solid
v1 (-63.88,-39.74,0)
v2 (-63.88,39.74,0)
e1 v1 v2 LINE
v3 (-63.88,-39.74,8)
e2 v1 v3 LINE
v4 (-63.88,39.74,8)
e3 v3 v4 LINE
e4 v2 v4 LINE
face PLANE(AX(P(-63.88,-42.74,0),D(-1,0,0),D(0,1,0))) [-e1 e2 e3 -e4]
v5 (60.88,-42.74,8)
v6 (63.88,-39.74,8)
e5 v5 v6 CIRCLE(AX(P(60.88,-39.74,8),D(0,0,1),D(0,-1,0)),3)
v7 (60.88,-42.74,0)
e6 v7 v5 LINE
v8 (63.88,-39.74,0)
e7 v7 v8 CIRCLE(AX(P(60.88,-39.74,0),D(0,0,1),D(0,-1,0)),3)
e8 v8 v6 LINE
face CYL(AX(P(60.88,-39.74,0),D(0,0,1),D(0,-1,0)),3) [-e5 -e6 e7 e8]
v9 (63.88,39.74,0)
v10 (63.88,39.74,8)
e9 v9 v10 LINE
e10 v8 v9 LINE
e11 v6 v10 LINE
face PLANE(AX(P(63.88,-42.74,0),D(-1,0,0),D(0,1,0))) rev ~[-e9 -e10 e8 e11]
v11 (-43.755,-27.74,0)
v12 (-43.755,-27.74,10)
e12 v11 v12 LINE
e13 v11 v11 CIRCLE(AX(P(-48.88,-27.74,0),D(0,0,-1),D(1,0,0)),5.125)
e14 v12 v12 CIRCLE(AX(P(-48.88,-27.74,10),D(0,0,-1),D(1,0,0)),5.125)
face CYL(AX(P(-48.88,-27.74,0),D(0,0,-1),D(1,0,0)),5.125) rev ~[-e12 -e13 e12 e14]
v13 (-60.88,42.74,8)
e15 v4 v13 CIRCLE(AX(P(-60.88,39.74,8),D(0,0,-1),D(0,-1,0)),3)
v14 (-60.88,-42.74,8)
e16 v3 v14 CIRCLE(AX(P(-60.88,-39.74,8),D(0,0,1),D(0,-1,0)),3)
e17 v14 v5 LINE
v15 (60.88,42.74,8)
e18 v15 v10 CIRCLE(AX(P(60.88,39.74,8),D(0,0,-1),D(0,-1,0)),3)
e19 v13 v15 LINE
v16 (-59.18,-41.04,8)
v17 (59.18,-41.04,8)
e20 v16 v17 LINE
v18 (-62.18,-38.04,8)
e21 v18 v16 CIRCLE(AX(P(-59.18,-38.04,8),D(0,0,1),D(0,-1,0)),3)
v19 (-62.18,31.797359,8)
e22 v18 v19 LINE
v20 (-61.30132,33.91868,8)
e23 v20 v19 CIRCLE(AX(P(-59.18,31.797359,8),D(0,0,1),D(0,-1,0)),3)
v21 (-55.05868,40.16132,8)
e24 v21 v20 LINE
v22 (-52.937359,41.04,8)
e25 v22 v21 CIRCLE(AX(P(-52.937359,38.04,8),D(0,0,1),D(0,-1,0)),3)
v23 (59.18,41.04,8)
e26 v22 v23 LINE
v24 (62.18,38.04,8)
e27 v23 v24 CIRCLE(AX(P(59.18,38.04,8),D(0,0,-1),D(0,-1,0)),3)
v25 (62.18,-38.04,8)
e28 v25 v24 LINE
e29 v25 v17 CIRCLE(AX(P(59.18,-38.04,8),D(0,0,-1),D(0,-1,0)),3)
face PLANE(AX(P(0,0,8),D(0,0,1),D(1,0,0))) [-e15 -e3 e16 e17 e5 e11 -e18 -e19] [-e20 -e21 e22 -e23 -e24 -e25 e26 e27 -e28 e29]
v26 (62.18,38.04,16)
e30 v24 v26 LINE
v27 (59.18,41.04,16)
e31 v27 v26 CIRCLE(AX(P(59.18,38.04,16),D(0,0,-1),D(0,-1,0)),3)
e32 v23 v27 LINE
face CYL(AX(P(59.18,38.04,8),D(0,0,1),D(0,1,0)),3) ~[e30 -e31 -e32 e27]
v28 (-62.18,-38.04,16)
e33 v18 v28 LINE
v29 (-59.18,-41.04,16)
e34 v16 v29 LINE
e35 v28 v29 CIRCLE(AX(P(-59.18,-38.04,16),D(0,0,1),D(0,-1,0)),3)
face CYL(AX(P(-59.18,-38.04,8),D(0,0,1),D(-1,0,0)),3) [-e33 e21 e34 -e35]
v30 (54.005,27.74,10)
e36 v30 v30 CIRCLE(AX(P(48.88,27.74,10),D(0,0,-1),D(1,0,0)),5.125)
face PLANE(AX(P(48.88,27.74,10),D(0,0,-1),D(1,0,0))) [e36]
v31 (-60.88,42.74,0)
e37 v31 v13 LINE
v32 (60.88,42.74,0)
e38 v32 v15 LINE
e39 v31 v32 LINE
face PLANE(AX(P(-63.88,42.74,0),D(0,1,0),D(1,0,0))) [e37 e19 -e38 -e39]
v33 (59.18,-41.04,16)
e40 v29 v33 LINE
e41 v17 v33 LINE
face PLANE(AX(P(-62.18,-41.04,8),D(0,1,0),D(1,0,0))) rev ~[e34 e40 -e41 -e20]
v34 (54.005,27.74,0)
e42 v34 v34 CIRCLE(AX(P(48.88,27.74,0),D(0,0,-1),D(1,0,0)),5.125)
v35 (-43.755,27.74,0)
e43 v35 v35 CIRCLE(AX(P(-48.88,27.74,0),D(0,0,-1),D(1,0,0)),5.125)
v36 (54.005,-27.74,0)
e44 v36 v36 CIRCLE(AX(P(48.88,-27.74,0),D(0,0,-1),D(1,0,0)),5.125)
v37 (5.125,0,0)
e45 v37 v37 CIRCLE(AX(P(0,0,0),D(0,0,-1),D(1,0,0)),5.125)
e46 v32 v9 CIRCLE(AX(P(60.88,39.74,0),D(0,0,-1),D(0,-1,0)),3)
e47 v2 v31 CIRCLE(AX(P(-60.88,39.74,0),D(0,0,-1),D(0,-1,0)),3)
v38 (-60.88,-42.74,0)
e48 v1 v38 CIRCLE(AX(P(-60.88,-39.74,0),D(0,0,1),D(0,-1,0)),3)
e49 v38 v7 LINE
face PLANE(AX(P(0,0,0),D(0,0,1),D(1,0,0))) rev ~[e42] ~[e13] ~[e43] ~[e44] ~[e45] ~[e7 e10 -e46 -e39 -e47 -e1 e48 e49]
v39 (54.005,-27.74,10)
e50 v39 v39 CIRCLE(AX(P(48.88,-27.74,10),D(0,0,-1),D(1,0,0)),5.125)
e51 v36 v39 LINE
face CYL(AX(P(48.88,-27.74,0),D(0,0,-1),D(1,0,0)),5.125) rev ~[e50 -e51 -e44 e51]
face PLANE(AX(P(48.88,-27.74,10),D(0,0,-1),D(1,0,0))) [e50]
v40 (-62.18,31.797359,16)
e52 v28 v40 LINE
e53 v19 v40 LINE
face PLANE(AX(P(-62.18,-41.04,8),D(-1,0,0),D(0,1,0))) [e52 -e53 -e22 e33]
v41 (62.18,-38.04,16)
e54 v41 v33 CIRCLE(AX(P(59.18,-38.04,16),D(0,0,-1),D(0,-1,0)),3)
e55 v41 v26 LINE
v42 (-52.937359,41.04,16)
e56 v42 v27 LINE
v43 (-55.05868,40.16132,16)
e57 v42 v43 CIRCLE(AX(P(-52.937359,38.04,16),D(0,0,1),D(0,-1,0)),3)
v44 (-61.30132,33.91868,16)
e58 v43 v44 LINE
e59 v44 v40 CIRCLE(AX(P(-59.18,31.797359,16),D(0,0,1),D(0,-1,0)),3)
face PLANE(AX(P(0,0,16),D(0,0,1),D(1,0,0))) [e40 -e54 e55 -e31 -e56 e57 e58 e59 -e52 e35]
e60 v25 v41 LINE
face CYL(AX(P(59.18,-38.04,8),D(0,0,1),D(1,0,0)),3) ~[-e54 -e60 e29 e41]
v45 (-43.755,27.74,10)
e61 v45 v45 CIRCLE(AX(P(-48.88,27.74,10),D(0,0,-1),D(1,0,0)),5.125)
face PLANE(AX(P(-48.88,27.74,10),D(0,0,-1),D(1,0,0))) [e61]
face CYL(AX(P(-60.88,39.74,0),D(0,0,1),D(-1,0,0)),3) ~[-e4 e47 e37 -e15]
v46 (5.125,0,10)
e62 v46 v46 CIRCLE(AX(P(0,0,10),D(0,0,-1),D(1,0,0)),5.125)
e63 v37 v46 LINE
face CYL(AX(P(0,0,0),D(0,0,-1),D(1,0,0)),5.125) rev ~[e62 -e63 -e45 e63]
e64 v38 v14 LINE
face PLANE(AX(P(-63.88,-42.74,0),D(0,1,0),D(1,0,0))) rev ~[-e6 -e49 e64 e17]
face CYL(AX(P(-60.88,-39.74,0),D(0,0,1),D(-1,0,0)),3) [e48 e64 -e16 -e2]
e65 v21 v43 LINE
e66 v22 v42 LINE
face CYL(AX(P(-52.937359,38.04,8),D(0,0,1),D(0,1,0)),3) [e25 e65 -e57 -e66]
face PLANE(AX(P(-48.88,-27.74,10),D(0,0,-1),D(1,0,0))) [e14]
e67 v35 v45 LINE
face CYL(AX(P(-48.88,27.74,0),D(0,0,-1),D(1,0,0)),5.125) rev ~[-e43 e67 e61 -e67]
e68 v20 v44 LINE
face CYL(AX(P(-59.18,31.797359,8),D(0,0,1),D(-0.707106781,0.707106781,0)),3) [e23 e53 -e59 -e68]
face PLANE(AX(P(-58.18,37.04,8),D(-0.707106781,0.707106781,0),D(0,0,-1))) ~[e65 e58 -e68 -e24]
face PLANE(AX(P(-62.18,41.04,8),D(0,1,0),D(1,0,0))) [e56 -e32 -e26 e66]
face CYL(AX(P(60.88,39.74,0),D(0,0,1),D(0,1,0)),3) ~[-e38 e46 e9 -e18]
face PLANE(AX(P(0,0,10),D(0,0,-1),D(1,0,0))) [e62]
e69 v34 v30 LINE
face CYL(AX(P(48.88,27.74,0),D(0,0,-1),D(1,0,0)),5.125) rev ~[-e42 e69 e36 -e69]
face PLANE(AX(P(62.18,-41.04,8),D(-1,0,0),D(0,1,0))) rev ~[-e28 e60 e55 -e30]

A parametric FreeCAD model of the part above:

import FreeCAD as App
import Part
import Sketcher


def edges_at(feature, points):
    """Names of the edges that pass closest to the given points."""
    edges = feature.Shape.Edges
    near = lambda p: min(range(len(edges)), key=lambda i: edges[i].distToShape(Part.Vertex(*p))[0])
    return sorted({f"Edge{near(p) + 1}" for p in points})


def add_polygon(sketch, points):
    """Adds a closed chain of lines whose ends are joined by coincident constraints."""
    first, n = sketch.GeometryCount, len(points)
    for a, b in zip(points, points[1:] + points[:1]):
        sketch.addGeometry(Part.LineSegment(App.Vector(*a, 0), App.Vector(*b, 0)), False)
    for i in range(n):
        sketch.addConstraint(Sketcher.Constraint("Coincident", first + i, 2, first + (i + 1) % n, 1))

doc = App.newDocument("Part")
params = doc.addObject("Spreadsheet::Sheet", "Params")
for row, (alias, value) in enumerate([
    ("sketch1_width", "127.76 mm"),
    ("sketch1_height", "85.48 mm"),
    ("pad1_length", "8 mm"),
    ("sketch2_width", "124.36 mm"),
    ("sketch2_height", "82.08 mm"),
    ("pad2_length", "8 mm"),
    ("chamfer_size", "8 mm"),
    ("fillet_radius", "3 mm"),
    ("sketch3_diameter", "10.25 mm"),
    ("pocket1_length", "10 mm"),
], start=1):
    params.set(f"A{row}", alias)
    params.set(f"B{row}", "=" + value)
    params.setAlias(f"B{row}", alias)

body = doc.addObject("PartDesign::Body", "Body")

# Sketch on XY plane
sketch1 = body.newObject("Sketcher::SketchObject", "Sketch")
sketch1.AttachmentSupport = (doc.getObject("XY_Plane"), [""])
sketch1.MapMode = "FlatFace"
add_polygon(sketch1, [(-64, 43), (-64, -43), (64, -43), (64, 43)])  # lines 0-3
sketch1.addConstraint(Sketcher.Constraint("Vertical", 0))
sketch1.addConstraint(Sketcher.Constraint("Horizontal", 1))
sketch1.addConstraint(Sketcher.Constraint("Vertical", 2))
sketch1.addConstraint(Sketcher.Constraint("Horizontal", 3))
sketch1.addConstraint(Sketcher.Constraint("Symmetric", 0, 2, 2, 2, -1, 1))
sketch1.addConstraint(Sketcher.Constraint("DistanceX", 1, 1, 1, 2, 127.76))
sketch1.addConstraint(Sketcher.Constraint("DistanceY", 0, 2, 0, 1, 85.48))
sketch1.setExpression("Constraints[9]", "Params.sketch1_width")
sketch1.setExpression("Constraints[10]", "Params.sketch1_height")
pad1 = body.newObject("PartDesign::Pad", "Pad")
pad1.Profile = sketch1
pad1.setExpression("Length", "Params.pad1_length")

# Sketch on XY plane
sketch2 = body.newObject("Sketcher::SketchObject", "Sketch001")
sketch2.AttachmentSupport = (doc.getObject("XY_Plane"), [""])
sketch2.MapMode = "FlatFace"
sketch2.AttachmentOffset = App.Placement(App.Vector(0, 0, 8), App.Rotation())
add_polygon(sketch2, [(-62, 41), (-62, -41), (62, -41), (62, 41)])  # lines 0-3
sketch2.addConstraint(Sketcher.Constraint("Vertical", 0))
sketch2.addConstraint(Sketcher.Constraint("Horizontal", 1))
sketch2.addConstraint(Sketcher.Constraint("Vertical", 2))
sketch2.addConstraint(Sketcher.Constraint("Horizontal", 3))
sketch2.addConstraint(Sketcher.Constraint("Symmetric", 0, 2, 2, 2, -1, 1))
sketch2.addConstraint(Sketcher.Constraint("DistanceX", 1, 1, 1, 2, 124.36))
sketch2.addConstraint(Sketcher.Constraint("DistanceY", 0, 2, 0, 1, 82.08))
sketch2.setExpression("Constraints[9]", "Params.sketch2_width")
sketch2.setExpression("Constraints[10]", "Params.sketch2_height")
pad2 = body.newObject("PartDesign::Pad", "Pad001")
pad2.Profile = sketch2
pad2.setExpression("Length", "Params.pad2_length")
doc.recompute()

chamfer = body.newObject("PartDesign::Chamfer", "Chamfer")
chamfer.Base = (pad2, edges_at(pad2, [(-62.18, 41.04, 12)]))
chamfer.setExpression("Size", "Params.chamfer_size")
doc.recompute()

fillet = body.newObject("PartDesign::Fillet", "Fillet")
fillet.Base = (chamfer, edges_at(chamfer, [
    (-63.88, 42.74, 4),
    (-63.88, -42.74, 4),
    (63.88, -42.74, 4),
    (63.88, 42.74, 4),
    (-62.18, 33.04, 12),
    (-62.18, -41.04, 12),
    (62.18, -41.04, 12),
    (62.18, 41.04, 12),
    (-54.18, 41.04, 12),
]))
fillet.setExpression("Radius", "Params.fillet_radius")

# Sketch on XY plane
sketch3 = body.newObject("Sketcher::SketchObject", "Sketch002")
sketch3.AttachmentSupport = (doc.getObject("XY_Plane"), [""])
sketch3.MapMode = "FlatFace"
sketch3.addGeometry(Part.Circle(App.Vector(0, 0, 0), App.Vector(0, 0, 1), 5), False)
sketch3.addGeometry(Part.Circle(App.Vector(49, -28, 0), App.Vector(0, 0, 1), 5), False)
sketch3.addGeometry(Part.Circle(App.Vector(49, 28, 0), App.Vector(0, 0, 1), 5), False)
sketch3.addGeometry(Part.Circle(App.Vector(-49, 28, 0), App.Vector(0, 0, 1), 5), False)
sketch3.addGeometry(Part.Circle(App.Vector(-49, -28, 0), App.Vector(0, 0, 1), 5), False)
sketch3.addConstraint(Sketcher.Constraint("Coincident", 0, 3, -1, 1))
sketch3.addConstraint(Sketcher.Constraint("Equal", 0, 1))
sketch3.addConstraint(Sketcher.Constraint("Equal", 1, 2))
sketch3.addConstraint(Sketcher.Constraint("Equal", 2, 3))
sketch3.addConstraint(Sketcher.Constraint("Equal", 3, 4))
sketch3.addConstraint(Sketcher.Constraint("Symmetric", 1, 3, 3, 3, -1, 1))
sketch3.addConstraint(Sketcher.Constraint("Symmetric", 2, 3, 4, 3, -1, 1))
sketch3.addConstraint(Sketcher.Constraint("Symmetric", 2, 3, 3, 3, -2))
sketch3.addConstraint(Sketcher.Constraint("Diameter", 0, 10.25))
sketch3.addConstraint(Sketcher.Constraint("DistanceX", -1, 1, 1, 3, 48.88))
sketch3.addConstraint(Sketcher.Constraint("DistanceY", 1, 3, -1, 1, 27.74))
sketch3.setExpression("Constraints[8]", "Params.sketch3_diameter")
pocket1 = body.newObject("PartDesign::Pocket", "Pocket")
pocket1.Profile = sketch3
pocket1.setExpression("Length", "Params.pocket1_length")
pocket1.Reversed = True

doc.recompute()
